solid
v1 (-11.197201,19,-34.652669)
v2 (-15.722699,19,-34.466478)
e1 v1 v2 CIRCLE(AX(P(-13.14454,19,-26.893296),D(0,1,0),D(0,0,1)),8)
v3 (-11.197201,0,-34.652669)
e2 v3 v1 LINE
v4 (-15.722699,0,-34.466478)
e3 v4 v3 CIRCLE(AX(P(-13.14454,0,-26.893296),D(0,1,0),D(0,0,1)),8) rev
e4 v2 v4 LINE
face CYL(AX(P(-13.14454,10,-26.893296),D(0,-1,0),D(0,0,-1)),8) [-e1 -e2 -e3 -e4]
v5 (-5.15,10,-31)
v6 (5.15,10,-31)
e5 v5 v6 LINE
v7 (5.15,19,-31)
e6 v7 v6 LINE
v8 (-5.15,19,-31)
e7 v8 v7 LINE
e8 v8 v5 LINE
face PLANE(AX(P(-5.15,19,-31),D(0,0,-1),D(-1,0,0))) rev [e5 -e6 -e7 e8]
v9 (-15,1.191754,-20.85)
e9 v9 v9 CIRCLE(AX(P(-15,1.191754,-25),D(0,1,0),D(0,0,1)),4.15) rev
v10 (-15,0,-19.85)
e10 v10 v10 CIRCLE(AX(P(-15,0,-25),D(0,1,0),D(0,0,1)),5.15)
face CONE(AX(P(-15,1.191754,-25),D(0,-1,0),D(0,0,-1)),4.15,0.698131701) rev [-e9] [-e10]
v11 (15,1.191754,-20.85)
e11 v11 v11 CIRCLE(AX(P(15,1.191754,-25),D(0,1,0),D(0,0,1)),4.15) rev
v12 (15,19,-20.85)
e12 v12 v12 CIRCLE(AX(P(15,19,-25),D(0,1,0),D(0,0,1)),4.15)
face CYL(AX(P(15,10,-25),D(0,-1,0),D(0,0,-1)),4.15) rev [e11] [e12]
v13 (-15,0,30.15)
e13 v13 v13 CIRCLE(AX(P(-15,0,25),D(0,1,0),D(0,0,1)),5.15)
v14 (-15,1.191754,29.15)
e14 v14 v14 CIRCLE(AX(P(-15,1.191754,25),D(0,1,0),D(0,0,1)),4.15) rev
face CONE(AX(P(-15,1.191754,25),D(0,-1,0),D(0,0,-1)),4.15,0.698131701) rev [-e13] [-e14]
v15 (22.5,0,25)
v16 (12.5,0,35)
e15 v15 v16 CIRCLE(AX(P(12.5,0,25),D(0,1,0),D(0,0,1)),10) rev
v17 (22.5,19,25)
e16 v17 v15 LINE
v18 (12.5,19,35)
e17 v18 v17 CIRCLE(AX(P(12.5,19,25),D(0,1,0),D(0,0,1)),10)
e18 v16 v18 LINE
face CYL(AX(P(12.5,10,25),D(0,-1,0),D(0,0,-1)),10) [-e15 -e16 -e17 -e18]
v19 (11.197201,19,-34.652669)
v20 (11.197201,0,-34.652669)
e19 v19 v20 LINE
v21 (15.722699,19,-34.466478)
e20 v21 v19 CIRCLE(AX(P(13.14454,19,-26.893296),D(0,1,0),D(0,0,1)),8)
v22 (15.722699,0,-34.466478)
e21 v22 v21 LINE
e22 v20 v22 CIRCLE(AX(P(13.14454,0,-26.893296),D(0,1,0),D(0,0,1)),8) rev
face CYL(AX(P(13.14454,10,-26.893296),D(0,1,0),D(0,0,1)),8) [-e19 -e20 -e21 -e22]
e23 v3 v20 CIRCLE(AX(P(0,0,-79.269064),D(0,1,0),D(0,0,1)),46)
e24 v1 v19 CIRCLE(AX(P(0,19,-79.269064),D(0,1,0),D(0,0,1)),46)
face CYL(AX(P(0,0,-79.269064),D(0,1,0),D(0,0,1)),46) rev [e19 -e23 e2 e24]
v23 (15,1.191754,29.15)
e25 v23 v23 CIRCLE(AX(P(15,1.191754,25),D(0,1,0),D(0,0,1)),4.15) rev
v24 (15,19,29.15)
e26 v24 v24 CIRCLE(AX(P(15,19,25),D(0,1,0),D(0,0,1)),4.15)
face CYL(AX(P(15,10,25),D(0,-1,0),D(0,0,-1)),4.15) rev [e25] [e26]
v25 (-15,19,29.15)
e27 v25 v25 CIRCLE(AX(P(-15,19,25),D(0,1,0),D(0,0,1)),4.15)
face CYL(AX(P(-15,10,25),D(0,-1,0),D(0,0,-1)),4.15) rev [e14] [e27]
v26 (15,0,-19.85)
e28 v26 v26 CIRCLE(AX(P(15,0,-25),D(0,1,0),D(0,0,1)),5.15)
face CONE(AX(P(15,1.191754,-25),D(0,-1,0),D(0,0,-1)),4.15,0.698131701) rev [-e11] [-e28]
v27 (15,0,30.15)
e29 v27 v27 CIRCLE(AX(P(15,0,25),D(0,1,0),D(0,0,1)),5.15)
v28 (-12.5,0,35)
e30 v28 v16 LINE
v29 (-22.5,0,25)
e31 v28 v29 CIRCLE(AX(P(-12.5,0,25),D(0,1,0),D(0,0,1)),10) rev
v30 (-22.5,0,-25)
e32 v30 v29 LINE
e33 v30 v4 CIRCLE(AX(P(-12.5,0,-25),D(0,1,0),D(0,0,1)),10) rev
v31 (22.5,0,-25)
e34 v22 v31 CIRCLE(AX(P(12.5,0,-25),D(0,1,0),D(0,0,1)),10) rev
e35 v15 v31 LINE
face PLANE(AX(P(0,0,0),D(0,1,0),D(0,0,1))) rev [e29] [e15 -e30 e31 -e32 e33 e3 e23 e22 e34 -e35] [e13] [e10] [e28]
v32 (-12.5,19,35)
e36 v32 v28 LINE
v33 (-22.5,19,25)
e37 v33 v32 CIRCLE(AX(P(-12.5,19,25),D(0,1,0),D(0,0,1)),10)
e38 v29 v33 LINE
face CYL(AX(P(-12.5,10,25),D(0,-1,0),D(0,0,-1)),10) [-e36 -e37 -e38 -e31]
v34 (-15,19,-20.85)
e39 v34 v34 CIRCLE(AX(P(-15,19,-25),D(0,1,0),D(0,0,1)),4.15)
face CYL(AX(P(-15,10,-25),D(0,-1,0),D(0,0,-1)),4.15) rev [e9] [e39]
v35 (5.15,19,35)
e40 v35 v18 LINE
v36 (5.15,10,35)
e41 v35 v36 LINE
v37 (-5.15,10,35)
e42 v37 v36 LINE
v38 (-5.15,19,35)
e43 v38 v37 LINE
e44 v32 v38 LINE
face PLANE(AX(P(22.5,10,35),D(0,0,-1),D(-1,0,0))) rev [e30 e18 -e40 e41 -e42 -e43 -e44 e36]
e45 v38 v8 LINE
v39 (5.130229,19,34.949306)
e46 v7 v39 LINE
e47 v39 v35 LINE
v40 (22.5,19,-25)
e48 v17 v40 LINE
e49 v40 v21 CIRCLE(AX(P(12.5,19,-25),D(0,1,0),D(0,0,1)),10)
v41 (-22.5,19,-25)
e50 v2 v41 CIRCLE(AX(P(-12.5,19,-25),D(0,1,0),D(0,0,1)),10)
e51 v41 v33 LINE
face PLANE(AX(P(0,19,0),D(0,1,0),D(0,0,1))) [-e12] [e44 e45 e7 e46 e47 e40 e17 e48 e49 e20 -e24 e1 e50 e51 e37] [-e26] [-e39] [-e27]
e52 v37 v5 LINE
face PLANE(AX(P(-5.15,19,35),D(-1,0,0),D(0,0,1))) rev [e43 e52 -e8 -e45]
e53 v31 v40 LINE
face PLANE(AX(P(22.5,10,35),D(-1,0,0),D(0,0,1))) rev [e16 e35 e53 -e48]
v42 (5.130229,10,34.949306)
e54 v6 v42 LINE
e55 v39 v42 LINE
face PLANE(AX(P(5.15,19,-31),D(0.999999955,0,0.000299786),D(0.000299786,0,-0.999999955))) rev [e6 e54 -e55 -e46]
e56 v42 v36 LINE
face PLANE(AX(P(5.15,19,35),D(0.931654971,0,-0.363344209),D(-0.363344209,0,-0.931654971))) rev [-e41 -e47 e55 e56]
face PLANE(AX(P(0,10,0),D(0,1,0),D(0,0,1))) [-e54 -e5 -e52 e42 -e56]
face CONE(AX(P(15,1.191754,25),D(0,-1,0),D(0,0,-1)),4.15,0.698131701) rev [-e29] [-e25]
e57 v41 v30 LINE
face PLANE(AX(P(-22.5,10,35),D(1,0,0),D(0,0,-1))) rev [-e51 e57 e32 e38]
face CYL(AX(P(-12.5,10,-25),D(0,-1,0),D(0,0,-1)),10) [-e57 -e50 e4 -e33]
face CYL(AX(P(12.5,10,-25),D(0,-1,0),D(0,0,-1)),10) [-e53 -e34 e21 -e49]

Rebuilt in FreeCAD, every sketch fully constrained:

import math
import FreeCAD as App
import Part
import Sketcher
from FreeCAD import Vector


def edges_at(feature, points):
    """Names of the edges that pass closest to the given points."""
    edges = feature.Shape.Edges
    near = lambda p: min(range(len(edges)), key=lambda i: edges[i].distToShape(Part.Vertex(*p))[0])
    return sorted({f"Edge{near(p) + 1}" for p in points})

doc = App.newDocument("Part")
body = doc.addObject("PartDesign::Body", "Body")

sketch1 = body.newObject("Sketcher::SketchObject", "Sketch")
sketch1.AttachmentSupport = (doc.getObject("XZ_Plane"), [""])
sketch1.MapMode = "FlatFace"
sketch1.addGeometry([
    Part.LineSegment(Vector(-22, -35, 0), Vector(-22, 35, 0)),
    Part.LineSegment(Vector(-22, 35, 0), Vector(22, 35, 0)),
    Part.LineSegment(Vector(22, 35, 0), Vector(22, -35, 0)),
    Part.LineSegment(Vector(22, -35, 0), Vector(-22, -35, 0)),
], False)
sketch1.addConstraint([
    Sketcher.Constraint("Coincident", 0, 2, 1, 1),
    Sketcher.Constraint("Coincident", 1, 2, 2, 1),
    Sketcher.Constraint("Coincident", 2, 2, 3, 1),
    Sketcher.Constraint("Coincident", 3, 2, 0, 1),
    Sketcher.Constraint("Vertical", 0),
    Sketcher.Constraint("Horizontal", 1),
    Sketcher.Constraint("Vertical", 2),
    Sketcher.Constraint("Horizontal", 3),
    Sketcher.Constraint("Symmetric", 0, 2, 2, 2, -1, 1),
    Sketcher.Constraint("DistanceX", 1, 1, 1, 2, 45.0),
    Sketcher.Constraint("DistanceY", 0, 1, 0, 2, 70.0),
])
pad1 = body.newObject("PartDesign::Pad", "Pad")
pad1.Profile = sketch1
pad1.Length = 10
pad1.Reversed = True

sketch2 = body.newObject("Sketcher::SketchObject", "Sketch001")
sketch2.AttachmentSupport = (doc.getObject("XZ_Plane"), [""])
sketch2.MapMode = "FlatFace"
sketch2.addGeometry([
    Part.Circle(Vector(15, 25, 0), Vector(0, 0, 1), 4.2),
    Part.Circle(Vector(15, -25, 0), Vector(0, 0, 1), 4.2),
    Part.Circle(Vector(-15, -25, 0), Vector(0, 0, 1), 4.2),
    Part.Circle(Vector(-15, 25, 0), Vector(0, 0, 1), 4.2),
], False)
sketch2.addConstraint([
    Sketcher.Constraint("Equal", 0, 1),
    Sketcher.Constraint("Equal", 1, 2),
    Sketcher.Constraint("Equal", 2, 3),
    Sketcher.Constraint("Symmetric", 0, 3, 2, 3, -1, 1),
    Sketcher.Constraint("Symmetric", 1, 3, 3, 3, -1, 1),
    Sketcher.Constraint("Symmetric", 1, 3, 2, 3, -2),
    Sketcher.Constraint("Diameter", 0, 8.3),
    Sketcher.Constraint("DistanceX", -1, 1, 0, 3, 15.0),
    Sketcher.Constraint("DistanceY", -1, 1, 0, 3, 25.0),
])
pocket1 = body.newObject("PartDesign::Pocket", "Pocket")
pocket1.Profile = sketch2
pocket1.Type = "ThroughAll"

sketch3 = body.newObject("Sketcher::SketchObject", "Sketch002")
sketch3.AttachmentSupport = (doc.getObject("XZ_Plane"), [""])
sketch3.MapMode = "FlatFace"
sketch3.AttachmentOffset = App.Placement(Vector(0, 0, -10), App.Rotation())
sketch3.addGeometry([
    Part.LineSegment(Vector(-22.5, 35, 0), Vector(-5.15, 35, 0)),
    Part.LineSegment(Vector(-5.15, 35, 0), Vector(-5.15, -31, 0)),
    Part.LineSegment(Vector(-5.15, -31, 0), Vector(5.15, -31, 0)),
    Part.LineSegment(Vector(5.15, -31, 0), Vector(5.13, 34.95, 0)),
    Part.LineSegment(Vector(5.13, 34.95, 0), Vector(5.15, 35, 0)),
    Part.LineSegment(Vector(5.15, 35, 0), Vector(22.5, 35, 0)),
    Part.LineSegment(Vector(22.5, 35, 0), Vector(22.5, -35, 0)),
    Part.LineSegment(Vector(22.5, -35, 0), Vector(-22.5, -35, 0)),
    Part.LineSegment(Vector(-22.5, -35, 0), Vector(-22.5, 35, 0)),
    Part.Circle(Vector(15, 25, 0), Vector(0, 0, 1), 4.15),
    Part.Circle(Vector(-15, 25, 0), Vector(0, 0, 1), 4.15),
    Part.Circle(Vector(15, -25, 0), Vector(0, 0, 1), 4.15),
    Part.Circle(Vector(-15, -25, 0), Vector(0, 0, 1), 4.15),
], False)
sketch3.addConstraint([
    Sketcher.Constraint("Coincident", 0, 2, 1, 1),
    Sketcher.Constraint("Coincident", 1, 2, 2, 1),
    Sketcher.Constraint("Coincident", 2, 2, 3, 1),
    Sketcher.Constraint("Coincident", 3, 2, 4, 1),
    Sketcher.Constraint("Coincident", 4, 2, 5, 1),
    Sketcher.Constraint("Coincident", 5, 2, 6, 1),
    Sketcher.Constraint("Coincident", 6, 2, 7, 1),
    Sketcher.Constraint("Coincident", 7, 2, 8, 1),
    Sketcher.Constraint("Coincident", 8, 2, 0, 1),
    Sketcher.Constraint("Horizontal", 0),
    Sketcher.Constraint("Vertical", 1),
    Sketcher.Constraint("Horizontal", 2),
    Sketcher.Constraint("Horizontal", 5),
    Sketcher.Constraint("Vertical", 6),
    Sketcher.Constraint("Horizontal", 7),
    Sketcher.Constraint("Vertical", 8),
    Sketcher.Constraint("Equal", 9, 10),
    Sketcher.Constraint("Equal", 10, 11),
    Sketcher.Constraint("Equal", 11, 12),
    Sketcher.Constraint("Symmetric", 10, 3, 11, 3, -1, 1),
    Sketcher.Constraint("Symmetric", 9, 3, 12, 3, -1, 1),
    Sketcher.Constraint("Symmetric", 5, 2, 7, 2, -1, 1),
    Sketcher.Constraint("Symmetric", 9, 3, 10, 3, -2),
    Sketcher.Constraint("Symmetric", 0, 2, 4, 2, -2),
    Sketcher.Constraint("Vertical", 2, 2, 4, 2),
    Sketcher.Constraint("Diameter", 9, 8.3),
    Sketcher.Constraint("DistanceX", 7, 2, 7, 1, 45.0),
    Sketcher.Constraint("DistanceY", 1, 2, 1, 1, 66.0),
    Sketcher.Constraint("DistanceY", 6, 2, 6, 1, 70.0),
    Sketcher.Constraint("DistanceX", 2, 1, 2, 2, 10.3),
    Sketcher.Constraint("DistanceX", -1, 1, 9, 3, 15.0),
    Sketcher.Constraint("DistanceY", -1, 1, 9, 3, 25.0),
    Sketcher.Constraint("Distance", 3, 65.949309),
    Sketcher.Constraint("DistanceX", -1, 1, 3, 2, 5.130229),
])
pad2 = body.newObject("PartDesign::Pad", "Pad001")
pad2.Profile = sketch3
pad2.Length = 9
pad2.Reversed = True
doc.recompute()

chamfer = body.newObject("PartDesign::Chamfer", "Chamfer")
chamfer.Base = (pad2, edges_at(pad2, [
    (-19.15, 0, -25),
    (-19.15, 0, 25),
    (10.85, 0, 25),
    (10.85, 0, -25),
]))
chamfer.ChamferType = "Two distances"
chamfer.Size = 1
chamfer.Size2 = 1.191754
doc.recompute()

fillet = body.newObject("PartDesign::Fillet", "Fillet")
fillet.Base = (chamfer, edges_at(chamfer, [
    (-22.5, 9.5, -35),
    (22.5, 9.5, -35),
    (22.5, 9.5, 35),
    (-22.5, 9.5, 35),
]))
fillet.Radius = 10

sketch4 = body.newObject("Sketcher::SketchObject", "Sketch003")
sketch4.AttachmentSupport = (doc.getObject("XZ_Plane"), [""])
sketch4.MapMode = "FlatFace"
sketch4.AttachmentOffset = App.Placement(Vector(0, 0, -19), App.Rotation())
sketch4.addGeometry([
    Part.LineSegment(Vector(12, -35, 0), Vector(-12, -35, 0)),
    Part.ArcOfCircle(Part.Circle(Vector(0, -79, 0), Vector(0, 0, 1), 46), math.radians(74), math.radians(106)),
], False)
sketch4.addConstraint([
    Sketcher.Constraint("Coincident", 0, 1, 1, 1),
    Sketcher.Constraint("Coincident", 1, 2, 0, 2),
    Sketcher.Constraint("Horizontal", 0),
    Sketcher.Constraint("PointOnObject", 1, 3, -2),
    Sketcher.Constraint("Radius", 1, 46.0),
    Sketcher.Constraint("DistanceX", 0, 2, 0, 1, 25.0),
    Sketcher.Constraint("DistanceY", 0, 1, -1, 1, 35.0),
])
pocket2 = body.newObject("PartDesign::Pocket", "Pocket001")
pocket2.Profile = sketch4
pocket2.Type = "ThroughAll"
pocket2.Reversed = True
doc.recompute()

fillet2 = body.newObject("PartDesign::Fillet", "Fillet001")
fillet2.Base = (pocket2, edges_at(pocket2, [(-12.5, 9.5, -35), (12.5, 9.5, -35)]))
fillet2.Radius = 8

doc.recompute()
